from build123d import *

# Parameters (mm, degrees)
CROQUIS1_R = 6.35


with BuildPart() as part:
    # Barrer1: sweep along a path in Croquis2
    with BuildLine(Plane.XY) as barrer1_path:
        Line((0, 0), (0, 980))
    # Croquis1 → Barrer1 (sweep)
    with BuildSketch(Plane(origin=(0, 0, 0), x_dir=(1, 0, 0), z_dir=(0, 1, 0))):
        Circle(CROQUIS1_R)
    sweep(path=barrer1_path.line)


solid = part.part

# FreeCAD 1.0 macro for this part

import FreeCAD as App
import Part
import Sketcher

doc = App.newDocument("Part")
body = doc.addObject("PartDesign::Body", "Body")

sketch1 = body.newObject("Sketcher::SketchObject", "Sketch")
sketch1.AttachmentSupport = (doc.getObject("XZ_Plane"), [""])
sketch1.MapMode = "FlatFace"
sketch1.addGeometry(Part.Circle(App.Vector(0, 0, 0), App.Vector(0, 0, 1), 6), False)
sketch1.addConstraint([
    Sketcher.Constraint("Coincident", 0, 3, -1, 1),
    Sketcher.Constraint("Diameter", 0, 12.7),
])

sketch2 = body.newObject("Sketcher::SketchObject", "Sketch001")
sketch2.AttachmentSupport = (doc.getObject("XY_Plane"), [""])
sketch2.MapMode = "FlatFace"
sketch2.addGeometry(Part.LineSegment(App.Vector(0, 0, 0), App.Vector(0, 980, 0)), False)
sketch2.addConstraint([
    Sketcher.Constraint("Vertical", 0),
    Sketcher.Constraint("Coincident", 0, 1, -1, 1),
    Sketcher.Constraint("DistanceY", 0, 1, 0, 2, 980.0),
])
doc.recompute()

additivepipe = body.newObject("PartDesign::AdditivePipe", "AdditivePipe")
additivepipe.Profile = sketch1
additivepipe.Spine = (sketch2, ["Edge1"])

doc.recompute()
